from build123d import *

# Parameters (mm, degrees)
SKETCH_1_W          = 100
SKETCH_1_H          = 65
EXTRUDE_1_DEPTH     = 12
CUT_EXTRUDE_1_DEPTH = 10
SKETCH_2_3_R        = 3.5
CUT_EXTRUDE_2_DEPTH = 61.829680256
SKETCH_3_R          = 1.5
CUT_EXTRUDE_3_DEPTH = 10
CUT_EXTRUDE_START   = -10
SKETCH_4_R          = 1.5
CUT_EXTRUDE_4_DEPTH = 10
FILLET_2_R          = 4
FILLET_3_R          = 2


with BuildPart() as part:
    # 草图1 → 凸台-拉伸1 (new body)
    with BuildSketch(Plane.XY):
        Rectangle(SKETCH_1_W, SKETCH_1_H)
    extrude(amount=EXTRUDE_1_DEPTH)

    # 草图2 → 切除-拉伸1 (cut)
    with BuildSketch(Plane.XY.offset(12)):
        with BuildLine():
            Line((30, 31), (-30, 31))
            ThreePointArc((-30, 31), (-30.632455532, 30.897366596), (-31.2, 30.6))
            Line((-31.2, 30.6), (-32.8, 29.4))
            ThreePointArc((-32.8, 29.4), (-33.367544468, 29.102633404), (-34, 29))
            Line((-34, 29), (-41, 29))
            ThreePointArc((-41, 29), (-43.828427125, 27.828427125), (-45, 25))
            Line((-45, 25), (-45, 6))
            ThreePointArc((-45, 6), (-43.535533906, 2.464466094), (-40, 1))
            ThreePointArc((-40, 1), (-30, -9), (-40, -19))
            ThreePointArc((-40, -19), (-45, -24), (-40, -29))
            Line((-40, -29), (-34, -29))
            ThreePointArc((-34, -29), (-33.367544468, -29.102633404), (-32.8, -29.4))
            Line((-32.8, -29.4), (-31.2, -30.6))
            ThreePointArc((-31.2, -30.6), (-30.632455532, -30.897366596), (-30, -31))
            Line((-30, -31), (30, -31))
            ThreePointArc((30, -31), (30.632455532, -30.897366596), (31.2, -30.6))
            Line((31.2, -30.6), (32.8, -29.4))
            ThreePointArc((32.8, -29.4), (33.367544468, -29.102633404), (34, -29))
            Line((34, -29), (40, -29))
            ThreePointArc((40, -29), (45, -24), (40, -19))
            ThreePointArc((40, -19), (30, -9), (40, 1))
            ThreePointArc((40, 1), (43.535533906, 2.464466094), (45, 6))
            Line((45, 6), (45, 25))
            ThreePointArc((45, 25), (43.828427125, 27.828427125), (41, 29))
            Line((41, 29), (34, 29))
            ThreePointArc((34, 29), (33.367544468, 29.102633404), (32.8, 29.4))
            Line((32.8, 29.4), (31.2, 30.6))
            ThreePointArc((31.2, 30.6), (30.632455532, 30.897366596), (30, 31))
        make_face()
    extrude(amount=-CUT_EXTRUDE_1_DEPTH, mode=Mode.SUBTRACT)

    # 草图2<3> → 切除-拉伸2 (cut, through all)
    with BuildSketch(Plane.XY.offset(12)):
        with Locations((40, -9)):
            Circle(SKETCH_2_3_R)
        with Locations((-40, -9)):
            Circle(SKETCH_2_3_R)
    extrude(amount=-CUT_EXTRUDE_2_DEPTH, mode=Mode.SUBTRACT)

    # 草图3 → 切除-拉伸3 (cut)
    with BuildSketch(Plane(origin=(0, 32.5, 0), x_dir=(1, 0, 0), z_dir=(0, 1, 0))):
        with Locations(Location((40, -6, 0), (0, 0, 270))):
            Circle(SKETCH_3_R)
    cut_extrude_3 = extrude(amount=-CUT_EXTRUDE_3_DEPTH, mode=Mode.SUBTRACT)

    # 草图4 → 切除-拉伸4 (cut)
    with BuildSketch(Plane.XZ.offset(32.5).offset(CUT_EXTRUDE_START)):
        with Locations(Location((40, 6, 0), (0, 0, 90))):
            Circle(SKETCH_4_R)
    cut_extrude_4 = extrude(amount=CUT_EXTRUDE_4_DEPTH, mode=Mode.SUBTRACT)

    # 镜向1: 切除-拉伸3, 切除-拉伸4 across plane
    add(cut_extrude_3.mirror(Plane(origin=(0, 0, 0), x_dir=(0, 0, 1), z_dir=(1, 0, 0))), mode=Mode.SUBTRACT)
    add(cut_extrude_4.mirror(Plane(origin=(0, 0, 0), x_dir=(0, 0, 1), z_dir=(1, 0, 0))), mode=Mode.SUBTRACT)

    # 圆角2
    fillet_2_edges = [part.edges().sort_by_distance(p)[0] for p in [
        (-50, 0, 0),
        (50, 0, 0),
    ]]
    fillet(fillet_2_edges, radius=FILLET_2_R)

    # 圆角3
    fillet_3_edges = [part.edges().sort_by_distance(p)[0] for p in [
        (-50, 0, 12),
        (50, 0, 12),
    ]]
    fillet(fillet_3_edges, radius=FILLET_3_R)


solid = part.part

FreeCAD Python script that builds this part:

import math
import FreeCAD as App
import Part
import Sketcher


def edges_at(feature, points):
    """Names of the edges that pass closest to the given points."""
    edges = feature.Shape.Edges
    near = lambda p: min(range(len(edges)), key=lambda i: edges[i].distToShape(Part.Vertex(*p))[0])
    return sorted({f"Edge{near(p) + 1}" for p in points})

doc = App.newDocument("Part")
params = doc.addObject("Spreadsheet::Sheet", "Params")
for row, (alias, value) in enumerate([
    ("sketch1_width", "100 mm"),
    ("sketch1_height", "65 mm"),
    ("pad1_length", "12 mm"),
    ("sketch2_radius", "2 mm"),
    ("sketch2_radius2", "4 mm"),
    ("sketch2_radius3", "5 mm"),
    ("sketch2_radius4", "10 mm"),
    ("sketch2_width", "60 mm"),
    ("pocket1_length", "10 mm"),
    ("sketch3_diameter", "7 mm"),
    ("sketch4_diameter", "3 mm"),
    ("pocket3_length", "10 mm"),
    ("sketch5_diameter", "3 mm"),
    ("pocket4_length", "10 mm"),
    ("fillet_radius", "4 mm"),
    ("fillet2_radius", "2 mm"),
], start=1):
    params.set(f"A{row}", alias)
    params.set(f"B{row}", "=" + value)
    params.setAlias(f"B{row}", alias)

body = doc.addObject("PartDesign::Body", "Body")

# Sketch on XY plane
sketch1 = body.newObject("Sketcher::SketchObject", "Sketch")
sketch1.AttachmentSupport = (doc.getObject("XY_Plane"), [""])
sketch1.MapMode = "FlatFace"
sketch1.addGeometry(Part.LineSegment(App.Vector(-50, 32, 0), App.Vector(-50, -32, 0)), False)
sketch1.addGeometry(Part.LineSegment(App.Vector(-50, -32, 0), App.Vector(50, -32, 0)), False)
sketch1.addGeometry(Part.LineSegment(App.Vector(50, -32, 0), App.Vector(50, 32, 0)), False)
sketch1.addGeometry(Part.LineSegment(App.Vector(50, 32, 0), App.Vector(-50, 32, 0)), False)
sketch1.addConstraint(Sketcher.Constraint("Coincident", 0, 2, 1, 1))
sketch1.addConstraint(Sketcher.Constraint("Coincident", 1, 2, 2, 1))
sketch1.addConstraint(Sketcher.Constraint("Coincident", 2, 2, 3, 1))
sketch1.addConstraint(Sketcher.Constraint("Coincident", 3, 2, 0, 1))
sketch1.addConstraint(Sketcher.Constraint("Vertical", 0))
sketch1.addConstraint(Sketcher.Constraint("Horizontal", 1))
sketch1.addConstraint(Sketcher.Constraint("Vertical", 2))
sketch1.addConstraint(Sketcher.Constraint("Horizontal", 3))
sketch1.addConstraint(Sketcher.Constraint("Symmetric", 0, 2, 2, 2, -1, 1))
sketch1.addConstraint(Sketcher.Constraint("DistanceX", 1, 1, 1, 2, 100.0))
sketch1.addConstraint(Sketcher.Constraint("DistanceY", 0, 2, 0, 1, 65.0))
sketch1.setExpression("Constraints[9]", "Params.sketch1_width")
sketch1.setExpression("Constraints[10]", "Params.sketch1_height")
pad1 = body.newObject("PartDesign::Pad", "Pad")
pad1.Profile = sketch1
pad1.setExpression("Length", "Params.pad1_length")

# Sketch on XY plane
sketch2 = body.newObject("Sketcher::SketchObject", "Sketch001")
sketch2.AttachmentSupport = (doc.getObject("XY_Plane"), [""])
sketch2.MapMode = "FlatFace"
sketch2.AttachmentOffset = App.Placement(App.Vector(0, 0, 12), App.Rotation())
sketch2.addGeometry(Part.LineSegment(App.Vector(30, 31, 0), App.Vector(-30, 31, 0)), False)
sketch2.addGeometry(Part.ArcOfCircle(Part.Circle(App.Vector(-30, 29, 0), App.Vector(0, 0, 1), 2), math.radians(90), math.radians(127)), False)
sketch2.addGeometry(Part.LineSegment(App.Vector(-31.2, 30.6, 0), App.Vector(-32.8, 29.4, 0)), False)
sketch2.addGeometry(Part.ArcOfCircle(Part.Circle(App.Vector(-34, 31, 0), App.Vector(0, 0, 1), 2), math.radians(-90), math.radians(-53)), False)
sketch2.addGeometry(Part.LineSegment(App.Vector(-34, 29, 0), App.Vector(-41, 29, 0)), False)
sketch2.addGeometry(Part.ArcOfCircle(Part.Circle(App.Vector(-41, 25, 0), App.Vector(0, 0, 1), 4), math.radians(90), math.radians(180)), False)
sketch2.addGeometry(Part.LineSegment(App.Vector(-45, 25, 0), App.Vector(-45, 6, 0)), False)
sketch2.addGeometry(Part.ArcOfCircle(Part.Circle(App.Vector(-40, 6, 0), App.Vector(0, 0, 1), 5), math.radians(180), math.radians(270)), False)
sketch2.addGeometry(Part.ArcOfCircle(Part.Circle(App.Vector(-40, -9, 0), App.Vector(0, 0, 1), 10), math.radians(-90), math.radians(90)), False)
sketch2.addGeometry(Part.ArcOfCircle(Part.Circle(App.Vector(-40, -24, 0), App.Vector(0, 0, 1), 5), math.radians(90), math.radians(270)), False)
sketch2.addGeometry(Part.LineSegment(App.Vector(-40, -29, 0), App.Vector(-34, -29, 0)), False)
sketch2.addGeometry(Part.ArcOfCircle(Part.Circle(App.Vector(-34, -31, 0), App.Vector(0, 0, 1), 2), math.radians(53), math.radians(90)), False)
sketch2.addGeometry(Part.LineSegment(App.Vector(-32.8, -29.4, 0), App.Vector(-31.2, -30.6, 0)), False)
sketch2.addGeometry(Part.ArcOfCircle(Part.Circle(App.Vector(-30, -29, 0), App.Vector(0, 0, 1), 2), math.radians(-127), math.radians(-90)), False)
sketch2.addGeometry(Part.LineSegment(App.Vector(-30, -31, 0), App.Vector(30, -31, 0)), False)
sketch2.addGeometry(Part.ArcOfCircle(Part.Circle(App.Vector(30, -29, 0), App.Vector(0, 0, 1), 2), math.radians(-90), math.radians(-53)), False)
sketch2.addGeometry(Part.LineSegment(App.Vector(31.2, -30.6, 0), App.Vector(32.8, -29.4, 0)), False)
sketch2.addGeometry(Part.ArcOfCircle(Part.Circle(App.Vector(34, -31, 0), App.Vector(0, 0, 1), 2), math.radians(90), math.radians(127)), False)
sketch2.addGeometry(Part.LineSegment(App.Vector(34, -29, 0), App.Vector(40, -29, 0)), False)
sketch2.addGeometry(Part.ArcOfCircle(Part.Circle(App.Vector(40, -24, 0), App.Vector(0, 0, 1), 5), math.radians(-90), math.radians(90)), False)
sketch2.addGeometry(Part.ArcOfCircle(Part.Circle(App.Vector(40, -9, 0), App.Vector(0, 0, 1), 10), math.radians(90), math.radians(270)), False)
sketch2.addGeometry(Part.ArcOfCircle(Part.Circle(App.Vector(40, 6, 0), App.Vector(0, 0, 1), 5), math.radians(-90), math.radians(0)), False)
sketch2.addGeometry(Part.LineSegment(App.Vector(45, 6, 0), App.Vector(45, 25, 0)), False)
sketch2.addGeometry(Part.ArcOfCircle(Part.Circle(App.Vector(41, 25, 0), App.Vector(0, 0, 1), 4), math.radians(0), math.radians(90)), False)
sketch2.addGeometry(Part.LineSegment(App.Vector(41, 29, 0), App.Vector(34, 29, 0)), False)
sketch2.addGeometry(Part.ArcOfCircle(Part.Circle(App.Vector(34, 31, 0), App.Vector(0, 0, 1), 2), math.radians(-127), math.radians(-90)), False)
sketch2.addGeometry(Part.LineSegment(App.Vector(32.8, 29.4, 0), App.Vector(31.2, 30.6, 0)), False)
sketch2.addGeometry(Part.ArcOfCircle(Part.Circle(App.Vector(30, 29, 0), App.Vector(0, 0, 1), 2), math.radians(53), math.radians(90)), False)
sketch2.addConstraint(Sketcher.Constraint("Tangent", 0, 2, 1, 1))
sketch2.addConstraint(Sketcher.Constraint("Tangent", 1, 2, 2, 1))
sketch2.addConstraint(Sketcher.Constraint("Tangent", 2, 2, 3, 2))
sketch2.addConstraint(Sketcher.Constraint("Tangent", 3, 1, 4, 1))
sketch2.addConstraint(Sketcher.Constraint("Tangent", 4, 2, 5, 1))
sketch2.addConstraint(Sketcher.Constraint("Tangent", 5, 2, 6, 1))
sketch2.addConstraint(Sketcher.Constraint("Tangent", 6, 2, 7, 1))
sketch2.addConstraint(Sketcher.Constraint("Tangent", 7, 2, 8, 2))
sketch2.addConstraint(Sketcher.Constraint("Tangent", 8, 1, 9, 1))
sketch2.addConstraint(Sketcher.Constraint("Tangent", 9, 2, 10, 1))
sketch2.addConstraint(Sketcher.Constraint("Tangent", 10, 2, 11, 2))
sketch2.addConstraint(Sketcher.Constraint("Tangent", 11, 1, 12, 1))
sketch2.addConstraint(Sketcher.Constraint("Tangent", 12, 2, 13, 1))
sketch2.addConstraint(Sketcher.Constraint("Tangent", 13, 2, 14, 1))
sketch2.addConstraint(Sketcher.Constraint("Tangent", 14, 2, 15, 1))
sketch2.addConstraint(Sketcher.Constraint("Tangent", 15, 2, 16, 1))
sketch2.addConstraint(Sketcher.Constraint("Tangent", 16, 2, 17, 2))
sketch2.addConstraint(Sketcher.Constraint("Tangent", 17, 1, 18, 1))
sketch2.addConstraint(Sketcher.Constraint("Tangent", 18, 2, 19, 1))
sketch2.addConstraint(Sketcher.Constraint("Tangent", 19, 2, 20, 2))
sketch2.addConstraint(Sketcher.Constraint("Tangent", 20, 1, 21, 1))
sketch2.addConstraint(Sketcher.Constraint("Tangent", 21, 2, 22, 1))
sketch2.addConstraint(Sketcher.Constraint("Tangent", 22, 2, 23, 1))
sketch2.addConstraint(Sketcher.Constraint("Tangent", 23, 2, 24, 1))
sketch2.addConstraint(Sketcher.Constraint("Tangent", 24, 2, 25, 2))
sketch2.addConstraint(Sketcher.Constraint("Tangent", 25, 1, 26, 1))
sketch2.addConstraint(Sketcher.Constraint("Tangent", 26, 2, 27, 1))
sketch2.addConstraint(Sketcher.Constraint("Tangent", 27, 2, 0, 1))
sketch2.addConstraint(Sketcher.Constraint("Horizontal", 0))
sketch2.addConstraint(Sketcher.Constraint("Horizontal", 4))
sketch2.addConstraint(Sketcher.Constraint("Vertical", 6))
sketch2.addConstraint(Sketcher.Constraint("Horizontal", 10))
sketch2.addConstraint(Sketcher.Constraint("Horizontal", 14))
sketch2.addConstraint(Sketcher.Constraint("Horizontal", 18))
sketch2.addConstraint(Sketcher.Constraint("Vertical", 22))
sketch2.addConstraint(Sketcher.Constraint("Horizontal", 24))
sketch2.addConstraint(Sketcher.Constraint("Equal", 1, 3))
sketch2.addConstraint(Sketcher.Constraint("Equal", 7, 9))
sketch2.addConstraint(Sketcher.Constraint("Equal", 3, 11))
sketch2.addConstraint(Sketcher.Constraint("Equal", 11, 13))
sketch2.addConstraint(Sketcher.Constraint("Equal", 13, 15))
sketch2.addConstraint(Sketcher.Constraint("Equal", 15, 17))
sketch2.addConstraint(Sketcher.Constraint("Equal", 9, 19))
sketch2.addConstraint(Sketcher.Constraint("Equal", 8, 20))
sketch2.addConstraint(Sketcher.Constraint("Equal", 19, 21))
sketch2.addConstraint(Sketcher.Constraint("Equal", 5, 23))
sketch2.addConstraint(Sketcher.Constraint("Equal", 17, 25))
sketch2.addConstraint(Sketcher.Constraint("Equal", 25, 27))
sketch2.addConstraint(Sketcher.Constraint("Symmetric", 1, 3, 15, 3, -1, 1))
sketch2.addConstraint(Sketcher.Constraint("Symmetric", 3, 3, 17, 3, -1, 1))
sketch2.addConstraint(Sketcher.Constraint("Symmetric", 11, 3, 25, 3, -1, 1))
sketch2.addConstraint(Sketcher.Constraint("Symmetric", 11, 3, 17, 3, -2))
sketch2.addConstraint(Sketcher.Constraint("Parallel", 12, 26))
sketch2.addConstraint(Sketcher.Constraint("Horizontal", 25, 3, 0, 2))
sketch2.addConstraint(Sketcher.Constraint("Horizontal", 12, 2, 15, 2))
sketch2.addConstraint(Sketcher.Constraint("Vertical", 7, 3, 8, 3))
sketch2.addConstraint(Sketcher.Constraint("Vertical", 8, 3, 9, 3))
sketch2.addConstraint(Sketcher.Constraint("Vertical", 19, 3, 20, 3))
sketch2.addConstraint(Sketcher.Constraint("Vertical", 20, 3, 21, 3))
sketch2.addConstraint(Sketcher.Constraint("Equal", 10, 18))
sketch2.addConstraint(Sketcher.Constraint("Radius", 1, 2.0))
sketch2.addConstraint(Sketcher.Constraint("Radius", 5, 4.0))
sketch2.addConstraint(Sketcher.Constraint("Radius", 7, 5.0))
sketch2.addConstraint(Sketcher.Constraint("Radius", 8, 10.0))
sketch2.addConstraint(Sketcher.Constraint("DistanceX", 0, 2, 0, 1, 60.0))
sketch2.addConstraint(Sketcher.Constraint("DistanceX", 4, 2, 4, 1, 7.0))
sketch2.addConstraint(Sketcher.Constraint("DistanceY", 6, 2, 6, 1, 19.0))
sketch2.addConstraint(Sketcher.Constraint("Distance", 2, 2.0))
sketch2.setExpression("Constraints[60]", "Params.sketch2_radius")
sketch2.setExpression("Constraints[61]", "Params.sketch2_radius2")
sketch2.setExpression("Constraints[62]", "Params.sketch2_radius3")
sketch2.setExpression("Constraints[63]", "Params.sketch2_radius4")
sketch2.setExpression("Constraints[64]", "Params.sketch2_width")
pocket1 = body.newObject("PartDesign::Pocket", "Pocket")
pocket1.Profile = sketch2
pocket1.setExpression("Length", "Params.pocket1_length")

# Sketch on XY plane
sketch3 = body.newObject("Sketcher::SketchObject", "Sketch002")
sketch3.AttachmentSupport = (doc.getObject("XY_Plane"), [""])
sketch3.MapMode = "FlatFace"
sketch3.AttachmentOffset = App.Placement(App.Vector(0, 0, 12), App.Rotation())
sketch3.addGeometry(Part.Circle(App.Vector(40, -9, 0), App.Vector(0, 0, 1), 3.5), False)
sketch3.addGeometry(Part.Circle(App.Vector(-40, -9, 0), App.Vector(0, 0, 1), 3.5), False)
sketch3.addConstraint(Sketcher.Constraint("Equal", 0, 1))
sketch3.addConstraint(Sketcher.Constraint("Symmetric", 0, 3, 1, 3, -2))
sketch3.addConstraint(Sketcher.Constraint("Diameter", 0, 7.0))
sketch3.addConstraint(Sketcher.Constraint("DistanceX", -1, 1, 0, 3, 40.0))
sketch3.addConstraint(Sketcher.Constraint("DistanceY", 0, 3, -1, 1, 9.0))
sketch3.setExpression("Constraints[2]", "Params.sketch3_diameter")
pocket2 = body.newObject("PartDesign::Pocket", "Pocket001")
pocket2.Profile = sketch3
pocket2.Type = "ThroughAll"

# Sketch on XZ plane
sketch4 = body.newObject("Sketcher::SketchObject", "Sketch003")
sketch4.AttachmentSupport = (doc.getObject("XZ_Plane"), [""])
sketch4.MapMode = "FlatFace"
sketch4.AttachmentOffset = App.Placement(App.Vector(0, 0, -32.5), App.Rotation())
sketch4.addGeometry(Part.Circle(App.Vector(40, 6, 0), App.Vector(0, 0, 1), 1.5), False)
sketch4.addConstraint(Sketcher.Constraint("Diameter", 0, 3.0))
sketch4.addConstraint(Sketcher.Constraint("DistanceX", -1, 1, 0, 3, 40.0))
sketch4.addConstraint(Sketcher.Constraint("DistanceY", -1, 1, 0, 3, 6.0))
sketch4.setExpression("Constraints[0]", "Params.sketch4_diameter")
pocket3 = body.newObject("PartDesign::Pocket", "Pocket002")
pocket3.Profile = sketch4
pocket3.setExpression("Length", "Params.pocket3_length")
pocket3.Reversed = True

# Sketch on XZ plane
sketch5 = body.newObject("Sketcher::SketchObject", "Sketch004")
sketch5.AttachmentSupport = (doc.getObject("XZ_Plane"), [""])
sketch5.MapMode = "FlatFace"
sketch5.AttachmentOffset = App.Placement(App.Vector(0, 0, 22.5), App.Rotation())
sketch5.addGeometry(Part.Circle(App.Vector(40, 6, 0), App.Vector(0, 0, 1), 1.5), False)
sketch5.addConstraint(Sketcher.Constraint("Diameter", 0, 3.0))
sketch5.addConstraint(Sketcher.Constraint("DistanceX", -1, 1, 0, 3, 40.0))
sketch5.addConstraint(Sketcher.Constraint("DistanceY", -1, 1, 0, 3, 6.0))
sketch5.setExpression("Constraints[0]", "Params.sketch5_diameter")
pocket4 = body.newObject("PartDesign::Pocket", "Pocket003")
pocket4.Profile = sketch5
pocket4.setExpression("Length", "Params.pocket4_length")
pocket4.Reversed = True
doc.recompute()

mirrored = body.newObject("PartDesign::Mirrored", "Mirrored")
mirrored.Originals = [pocket3, pocket4]
mirrored.MirrorPlane = (doc.getObject("YZ_Plane"), [""])
body.Tip = mirrored
doc.recompute()

fillet = body.newObject("PartDesign::Fillet", "Fillet")
fillet.Base = (mirrored, edges_at(mirrored, [(-50, 0, 0), (50, 0, 0)]))
fillet.setExpression("Radius", "Params.fillet_radius")
doc.recompute()

fillet2 = body.newObject("PartDesign::Fillet", "Fillet001")
fillet2.Base = (fillet, edges_at(fillet, [(-50, 0, 12), (50, 0, 12)]))
fillet2.setExpression("Radius", "Params.fillet2_radius")

doc.recompute()
